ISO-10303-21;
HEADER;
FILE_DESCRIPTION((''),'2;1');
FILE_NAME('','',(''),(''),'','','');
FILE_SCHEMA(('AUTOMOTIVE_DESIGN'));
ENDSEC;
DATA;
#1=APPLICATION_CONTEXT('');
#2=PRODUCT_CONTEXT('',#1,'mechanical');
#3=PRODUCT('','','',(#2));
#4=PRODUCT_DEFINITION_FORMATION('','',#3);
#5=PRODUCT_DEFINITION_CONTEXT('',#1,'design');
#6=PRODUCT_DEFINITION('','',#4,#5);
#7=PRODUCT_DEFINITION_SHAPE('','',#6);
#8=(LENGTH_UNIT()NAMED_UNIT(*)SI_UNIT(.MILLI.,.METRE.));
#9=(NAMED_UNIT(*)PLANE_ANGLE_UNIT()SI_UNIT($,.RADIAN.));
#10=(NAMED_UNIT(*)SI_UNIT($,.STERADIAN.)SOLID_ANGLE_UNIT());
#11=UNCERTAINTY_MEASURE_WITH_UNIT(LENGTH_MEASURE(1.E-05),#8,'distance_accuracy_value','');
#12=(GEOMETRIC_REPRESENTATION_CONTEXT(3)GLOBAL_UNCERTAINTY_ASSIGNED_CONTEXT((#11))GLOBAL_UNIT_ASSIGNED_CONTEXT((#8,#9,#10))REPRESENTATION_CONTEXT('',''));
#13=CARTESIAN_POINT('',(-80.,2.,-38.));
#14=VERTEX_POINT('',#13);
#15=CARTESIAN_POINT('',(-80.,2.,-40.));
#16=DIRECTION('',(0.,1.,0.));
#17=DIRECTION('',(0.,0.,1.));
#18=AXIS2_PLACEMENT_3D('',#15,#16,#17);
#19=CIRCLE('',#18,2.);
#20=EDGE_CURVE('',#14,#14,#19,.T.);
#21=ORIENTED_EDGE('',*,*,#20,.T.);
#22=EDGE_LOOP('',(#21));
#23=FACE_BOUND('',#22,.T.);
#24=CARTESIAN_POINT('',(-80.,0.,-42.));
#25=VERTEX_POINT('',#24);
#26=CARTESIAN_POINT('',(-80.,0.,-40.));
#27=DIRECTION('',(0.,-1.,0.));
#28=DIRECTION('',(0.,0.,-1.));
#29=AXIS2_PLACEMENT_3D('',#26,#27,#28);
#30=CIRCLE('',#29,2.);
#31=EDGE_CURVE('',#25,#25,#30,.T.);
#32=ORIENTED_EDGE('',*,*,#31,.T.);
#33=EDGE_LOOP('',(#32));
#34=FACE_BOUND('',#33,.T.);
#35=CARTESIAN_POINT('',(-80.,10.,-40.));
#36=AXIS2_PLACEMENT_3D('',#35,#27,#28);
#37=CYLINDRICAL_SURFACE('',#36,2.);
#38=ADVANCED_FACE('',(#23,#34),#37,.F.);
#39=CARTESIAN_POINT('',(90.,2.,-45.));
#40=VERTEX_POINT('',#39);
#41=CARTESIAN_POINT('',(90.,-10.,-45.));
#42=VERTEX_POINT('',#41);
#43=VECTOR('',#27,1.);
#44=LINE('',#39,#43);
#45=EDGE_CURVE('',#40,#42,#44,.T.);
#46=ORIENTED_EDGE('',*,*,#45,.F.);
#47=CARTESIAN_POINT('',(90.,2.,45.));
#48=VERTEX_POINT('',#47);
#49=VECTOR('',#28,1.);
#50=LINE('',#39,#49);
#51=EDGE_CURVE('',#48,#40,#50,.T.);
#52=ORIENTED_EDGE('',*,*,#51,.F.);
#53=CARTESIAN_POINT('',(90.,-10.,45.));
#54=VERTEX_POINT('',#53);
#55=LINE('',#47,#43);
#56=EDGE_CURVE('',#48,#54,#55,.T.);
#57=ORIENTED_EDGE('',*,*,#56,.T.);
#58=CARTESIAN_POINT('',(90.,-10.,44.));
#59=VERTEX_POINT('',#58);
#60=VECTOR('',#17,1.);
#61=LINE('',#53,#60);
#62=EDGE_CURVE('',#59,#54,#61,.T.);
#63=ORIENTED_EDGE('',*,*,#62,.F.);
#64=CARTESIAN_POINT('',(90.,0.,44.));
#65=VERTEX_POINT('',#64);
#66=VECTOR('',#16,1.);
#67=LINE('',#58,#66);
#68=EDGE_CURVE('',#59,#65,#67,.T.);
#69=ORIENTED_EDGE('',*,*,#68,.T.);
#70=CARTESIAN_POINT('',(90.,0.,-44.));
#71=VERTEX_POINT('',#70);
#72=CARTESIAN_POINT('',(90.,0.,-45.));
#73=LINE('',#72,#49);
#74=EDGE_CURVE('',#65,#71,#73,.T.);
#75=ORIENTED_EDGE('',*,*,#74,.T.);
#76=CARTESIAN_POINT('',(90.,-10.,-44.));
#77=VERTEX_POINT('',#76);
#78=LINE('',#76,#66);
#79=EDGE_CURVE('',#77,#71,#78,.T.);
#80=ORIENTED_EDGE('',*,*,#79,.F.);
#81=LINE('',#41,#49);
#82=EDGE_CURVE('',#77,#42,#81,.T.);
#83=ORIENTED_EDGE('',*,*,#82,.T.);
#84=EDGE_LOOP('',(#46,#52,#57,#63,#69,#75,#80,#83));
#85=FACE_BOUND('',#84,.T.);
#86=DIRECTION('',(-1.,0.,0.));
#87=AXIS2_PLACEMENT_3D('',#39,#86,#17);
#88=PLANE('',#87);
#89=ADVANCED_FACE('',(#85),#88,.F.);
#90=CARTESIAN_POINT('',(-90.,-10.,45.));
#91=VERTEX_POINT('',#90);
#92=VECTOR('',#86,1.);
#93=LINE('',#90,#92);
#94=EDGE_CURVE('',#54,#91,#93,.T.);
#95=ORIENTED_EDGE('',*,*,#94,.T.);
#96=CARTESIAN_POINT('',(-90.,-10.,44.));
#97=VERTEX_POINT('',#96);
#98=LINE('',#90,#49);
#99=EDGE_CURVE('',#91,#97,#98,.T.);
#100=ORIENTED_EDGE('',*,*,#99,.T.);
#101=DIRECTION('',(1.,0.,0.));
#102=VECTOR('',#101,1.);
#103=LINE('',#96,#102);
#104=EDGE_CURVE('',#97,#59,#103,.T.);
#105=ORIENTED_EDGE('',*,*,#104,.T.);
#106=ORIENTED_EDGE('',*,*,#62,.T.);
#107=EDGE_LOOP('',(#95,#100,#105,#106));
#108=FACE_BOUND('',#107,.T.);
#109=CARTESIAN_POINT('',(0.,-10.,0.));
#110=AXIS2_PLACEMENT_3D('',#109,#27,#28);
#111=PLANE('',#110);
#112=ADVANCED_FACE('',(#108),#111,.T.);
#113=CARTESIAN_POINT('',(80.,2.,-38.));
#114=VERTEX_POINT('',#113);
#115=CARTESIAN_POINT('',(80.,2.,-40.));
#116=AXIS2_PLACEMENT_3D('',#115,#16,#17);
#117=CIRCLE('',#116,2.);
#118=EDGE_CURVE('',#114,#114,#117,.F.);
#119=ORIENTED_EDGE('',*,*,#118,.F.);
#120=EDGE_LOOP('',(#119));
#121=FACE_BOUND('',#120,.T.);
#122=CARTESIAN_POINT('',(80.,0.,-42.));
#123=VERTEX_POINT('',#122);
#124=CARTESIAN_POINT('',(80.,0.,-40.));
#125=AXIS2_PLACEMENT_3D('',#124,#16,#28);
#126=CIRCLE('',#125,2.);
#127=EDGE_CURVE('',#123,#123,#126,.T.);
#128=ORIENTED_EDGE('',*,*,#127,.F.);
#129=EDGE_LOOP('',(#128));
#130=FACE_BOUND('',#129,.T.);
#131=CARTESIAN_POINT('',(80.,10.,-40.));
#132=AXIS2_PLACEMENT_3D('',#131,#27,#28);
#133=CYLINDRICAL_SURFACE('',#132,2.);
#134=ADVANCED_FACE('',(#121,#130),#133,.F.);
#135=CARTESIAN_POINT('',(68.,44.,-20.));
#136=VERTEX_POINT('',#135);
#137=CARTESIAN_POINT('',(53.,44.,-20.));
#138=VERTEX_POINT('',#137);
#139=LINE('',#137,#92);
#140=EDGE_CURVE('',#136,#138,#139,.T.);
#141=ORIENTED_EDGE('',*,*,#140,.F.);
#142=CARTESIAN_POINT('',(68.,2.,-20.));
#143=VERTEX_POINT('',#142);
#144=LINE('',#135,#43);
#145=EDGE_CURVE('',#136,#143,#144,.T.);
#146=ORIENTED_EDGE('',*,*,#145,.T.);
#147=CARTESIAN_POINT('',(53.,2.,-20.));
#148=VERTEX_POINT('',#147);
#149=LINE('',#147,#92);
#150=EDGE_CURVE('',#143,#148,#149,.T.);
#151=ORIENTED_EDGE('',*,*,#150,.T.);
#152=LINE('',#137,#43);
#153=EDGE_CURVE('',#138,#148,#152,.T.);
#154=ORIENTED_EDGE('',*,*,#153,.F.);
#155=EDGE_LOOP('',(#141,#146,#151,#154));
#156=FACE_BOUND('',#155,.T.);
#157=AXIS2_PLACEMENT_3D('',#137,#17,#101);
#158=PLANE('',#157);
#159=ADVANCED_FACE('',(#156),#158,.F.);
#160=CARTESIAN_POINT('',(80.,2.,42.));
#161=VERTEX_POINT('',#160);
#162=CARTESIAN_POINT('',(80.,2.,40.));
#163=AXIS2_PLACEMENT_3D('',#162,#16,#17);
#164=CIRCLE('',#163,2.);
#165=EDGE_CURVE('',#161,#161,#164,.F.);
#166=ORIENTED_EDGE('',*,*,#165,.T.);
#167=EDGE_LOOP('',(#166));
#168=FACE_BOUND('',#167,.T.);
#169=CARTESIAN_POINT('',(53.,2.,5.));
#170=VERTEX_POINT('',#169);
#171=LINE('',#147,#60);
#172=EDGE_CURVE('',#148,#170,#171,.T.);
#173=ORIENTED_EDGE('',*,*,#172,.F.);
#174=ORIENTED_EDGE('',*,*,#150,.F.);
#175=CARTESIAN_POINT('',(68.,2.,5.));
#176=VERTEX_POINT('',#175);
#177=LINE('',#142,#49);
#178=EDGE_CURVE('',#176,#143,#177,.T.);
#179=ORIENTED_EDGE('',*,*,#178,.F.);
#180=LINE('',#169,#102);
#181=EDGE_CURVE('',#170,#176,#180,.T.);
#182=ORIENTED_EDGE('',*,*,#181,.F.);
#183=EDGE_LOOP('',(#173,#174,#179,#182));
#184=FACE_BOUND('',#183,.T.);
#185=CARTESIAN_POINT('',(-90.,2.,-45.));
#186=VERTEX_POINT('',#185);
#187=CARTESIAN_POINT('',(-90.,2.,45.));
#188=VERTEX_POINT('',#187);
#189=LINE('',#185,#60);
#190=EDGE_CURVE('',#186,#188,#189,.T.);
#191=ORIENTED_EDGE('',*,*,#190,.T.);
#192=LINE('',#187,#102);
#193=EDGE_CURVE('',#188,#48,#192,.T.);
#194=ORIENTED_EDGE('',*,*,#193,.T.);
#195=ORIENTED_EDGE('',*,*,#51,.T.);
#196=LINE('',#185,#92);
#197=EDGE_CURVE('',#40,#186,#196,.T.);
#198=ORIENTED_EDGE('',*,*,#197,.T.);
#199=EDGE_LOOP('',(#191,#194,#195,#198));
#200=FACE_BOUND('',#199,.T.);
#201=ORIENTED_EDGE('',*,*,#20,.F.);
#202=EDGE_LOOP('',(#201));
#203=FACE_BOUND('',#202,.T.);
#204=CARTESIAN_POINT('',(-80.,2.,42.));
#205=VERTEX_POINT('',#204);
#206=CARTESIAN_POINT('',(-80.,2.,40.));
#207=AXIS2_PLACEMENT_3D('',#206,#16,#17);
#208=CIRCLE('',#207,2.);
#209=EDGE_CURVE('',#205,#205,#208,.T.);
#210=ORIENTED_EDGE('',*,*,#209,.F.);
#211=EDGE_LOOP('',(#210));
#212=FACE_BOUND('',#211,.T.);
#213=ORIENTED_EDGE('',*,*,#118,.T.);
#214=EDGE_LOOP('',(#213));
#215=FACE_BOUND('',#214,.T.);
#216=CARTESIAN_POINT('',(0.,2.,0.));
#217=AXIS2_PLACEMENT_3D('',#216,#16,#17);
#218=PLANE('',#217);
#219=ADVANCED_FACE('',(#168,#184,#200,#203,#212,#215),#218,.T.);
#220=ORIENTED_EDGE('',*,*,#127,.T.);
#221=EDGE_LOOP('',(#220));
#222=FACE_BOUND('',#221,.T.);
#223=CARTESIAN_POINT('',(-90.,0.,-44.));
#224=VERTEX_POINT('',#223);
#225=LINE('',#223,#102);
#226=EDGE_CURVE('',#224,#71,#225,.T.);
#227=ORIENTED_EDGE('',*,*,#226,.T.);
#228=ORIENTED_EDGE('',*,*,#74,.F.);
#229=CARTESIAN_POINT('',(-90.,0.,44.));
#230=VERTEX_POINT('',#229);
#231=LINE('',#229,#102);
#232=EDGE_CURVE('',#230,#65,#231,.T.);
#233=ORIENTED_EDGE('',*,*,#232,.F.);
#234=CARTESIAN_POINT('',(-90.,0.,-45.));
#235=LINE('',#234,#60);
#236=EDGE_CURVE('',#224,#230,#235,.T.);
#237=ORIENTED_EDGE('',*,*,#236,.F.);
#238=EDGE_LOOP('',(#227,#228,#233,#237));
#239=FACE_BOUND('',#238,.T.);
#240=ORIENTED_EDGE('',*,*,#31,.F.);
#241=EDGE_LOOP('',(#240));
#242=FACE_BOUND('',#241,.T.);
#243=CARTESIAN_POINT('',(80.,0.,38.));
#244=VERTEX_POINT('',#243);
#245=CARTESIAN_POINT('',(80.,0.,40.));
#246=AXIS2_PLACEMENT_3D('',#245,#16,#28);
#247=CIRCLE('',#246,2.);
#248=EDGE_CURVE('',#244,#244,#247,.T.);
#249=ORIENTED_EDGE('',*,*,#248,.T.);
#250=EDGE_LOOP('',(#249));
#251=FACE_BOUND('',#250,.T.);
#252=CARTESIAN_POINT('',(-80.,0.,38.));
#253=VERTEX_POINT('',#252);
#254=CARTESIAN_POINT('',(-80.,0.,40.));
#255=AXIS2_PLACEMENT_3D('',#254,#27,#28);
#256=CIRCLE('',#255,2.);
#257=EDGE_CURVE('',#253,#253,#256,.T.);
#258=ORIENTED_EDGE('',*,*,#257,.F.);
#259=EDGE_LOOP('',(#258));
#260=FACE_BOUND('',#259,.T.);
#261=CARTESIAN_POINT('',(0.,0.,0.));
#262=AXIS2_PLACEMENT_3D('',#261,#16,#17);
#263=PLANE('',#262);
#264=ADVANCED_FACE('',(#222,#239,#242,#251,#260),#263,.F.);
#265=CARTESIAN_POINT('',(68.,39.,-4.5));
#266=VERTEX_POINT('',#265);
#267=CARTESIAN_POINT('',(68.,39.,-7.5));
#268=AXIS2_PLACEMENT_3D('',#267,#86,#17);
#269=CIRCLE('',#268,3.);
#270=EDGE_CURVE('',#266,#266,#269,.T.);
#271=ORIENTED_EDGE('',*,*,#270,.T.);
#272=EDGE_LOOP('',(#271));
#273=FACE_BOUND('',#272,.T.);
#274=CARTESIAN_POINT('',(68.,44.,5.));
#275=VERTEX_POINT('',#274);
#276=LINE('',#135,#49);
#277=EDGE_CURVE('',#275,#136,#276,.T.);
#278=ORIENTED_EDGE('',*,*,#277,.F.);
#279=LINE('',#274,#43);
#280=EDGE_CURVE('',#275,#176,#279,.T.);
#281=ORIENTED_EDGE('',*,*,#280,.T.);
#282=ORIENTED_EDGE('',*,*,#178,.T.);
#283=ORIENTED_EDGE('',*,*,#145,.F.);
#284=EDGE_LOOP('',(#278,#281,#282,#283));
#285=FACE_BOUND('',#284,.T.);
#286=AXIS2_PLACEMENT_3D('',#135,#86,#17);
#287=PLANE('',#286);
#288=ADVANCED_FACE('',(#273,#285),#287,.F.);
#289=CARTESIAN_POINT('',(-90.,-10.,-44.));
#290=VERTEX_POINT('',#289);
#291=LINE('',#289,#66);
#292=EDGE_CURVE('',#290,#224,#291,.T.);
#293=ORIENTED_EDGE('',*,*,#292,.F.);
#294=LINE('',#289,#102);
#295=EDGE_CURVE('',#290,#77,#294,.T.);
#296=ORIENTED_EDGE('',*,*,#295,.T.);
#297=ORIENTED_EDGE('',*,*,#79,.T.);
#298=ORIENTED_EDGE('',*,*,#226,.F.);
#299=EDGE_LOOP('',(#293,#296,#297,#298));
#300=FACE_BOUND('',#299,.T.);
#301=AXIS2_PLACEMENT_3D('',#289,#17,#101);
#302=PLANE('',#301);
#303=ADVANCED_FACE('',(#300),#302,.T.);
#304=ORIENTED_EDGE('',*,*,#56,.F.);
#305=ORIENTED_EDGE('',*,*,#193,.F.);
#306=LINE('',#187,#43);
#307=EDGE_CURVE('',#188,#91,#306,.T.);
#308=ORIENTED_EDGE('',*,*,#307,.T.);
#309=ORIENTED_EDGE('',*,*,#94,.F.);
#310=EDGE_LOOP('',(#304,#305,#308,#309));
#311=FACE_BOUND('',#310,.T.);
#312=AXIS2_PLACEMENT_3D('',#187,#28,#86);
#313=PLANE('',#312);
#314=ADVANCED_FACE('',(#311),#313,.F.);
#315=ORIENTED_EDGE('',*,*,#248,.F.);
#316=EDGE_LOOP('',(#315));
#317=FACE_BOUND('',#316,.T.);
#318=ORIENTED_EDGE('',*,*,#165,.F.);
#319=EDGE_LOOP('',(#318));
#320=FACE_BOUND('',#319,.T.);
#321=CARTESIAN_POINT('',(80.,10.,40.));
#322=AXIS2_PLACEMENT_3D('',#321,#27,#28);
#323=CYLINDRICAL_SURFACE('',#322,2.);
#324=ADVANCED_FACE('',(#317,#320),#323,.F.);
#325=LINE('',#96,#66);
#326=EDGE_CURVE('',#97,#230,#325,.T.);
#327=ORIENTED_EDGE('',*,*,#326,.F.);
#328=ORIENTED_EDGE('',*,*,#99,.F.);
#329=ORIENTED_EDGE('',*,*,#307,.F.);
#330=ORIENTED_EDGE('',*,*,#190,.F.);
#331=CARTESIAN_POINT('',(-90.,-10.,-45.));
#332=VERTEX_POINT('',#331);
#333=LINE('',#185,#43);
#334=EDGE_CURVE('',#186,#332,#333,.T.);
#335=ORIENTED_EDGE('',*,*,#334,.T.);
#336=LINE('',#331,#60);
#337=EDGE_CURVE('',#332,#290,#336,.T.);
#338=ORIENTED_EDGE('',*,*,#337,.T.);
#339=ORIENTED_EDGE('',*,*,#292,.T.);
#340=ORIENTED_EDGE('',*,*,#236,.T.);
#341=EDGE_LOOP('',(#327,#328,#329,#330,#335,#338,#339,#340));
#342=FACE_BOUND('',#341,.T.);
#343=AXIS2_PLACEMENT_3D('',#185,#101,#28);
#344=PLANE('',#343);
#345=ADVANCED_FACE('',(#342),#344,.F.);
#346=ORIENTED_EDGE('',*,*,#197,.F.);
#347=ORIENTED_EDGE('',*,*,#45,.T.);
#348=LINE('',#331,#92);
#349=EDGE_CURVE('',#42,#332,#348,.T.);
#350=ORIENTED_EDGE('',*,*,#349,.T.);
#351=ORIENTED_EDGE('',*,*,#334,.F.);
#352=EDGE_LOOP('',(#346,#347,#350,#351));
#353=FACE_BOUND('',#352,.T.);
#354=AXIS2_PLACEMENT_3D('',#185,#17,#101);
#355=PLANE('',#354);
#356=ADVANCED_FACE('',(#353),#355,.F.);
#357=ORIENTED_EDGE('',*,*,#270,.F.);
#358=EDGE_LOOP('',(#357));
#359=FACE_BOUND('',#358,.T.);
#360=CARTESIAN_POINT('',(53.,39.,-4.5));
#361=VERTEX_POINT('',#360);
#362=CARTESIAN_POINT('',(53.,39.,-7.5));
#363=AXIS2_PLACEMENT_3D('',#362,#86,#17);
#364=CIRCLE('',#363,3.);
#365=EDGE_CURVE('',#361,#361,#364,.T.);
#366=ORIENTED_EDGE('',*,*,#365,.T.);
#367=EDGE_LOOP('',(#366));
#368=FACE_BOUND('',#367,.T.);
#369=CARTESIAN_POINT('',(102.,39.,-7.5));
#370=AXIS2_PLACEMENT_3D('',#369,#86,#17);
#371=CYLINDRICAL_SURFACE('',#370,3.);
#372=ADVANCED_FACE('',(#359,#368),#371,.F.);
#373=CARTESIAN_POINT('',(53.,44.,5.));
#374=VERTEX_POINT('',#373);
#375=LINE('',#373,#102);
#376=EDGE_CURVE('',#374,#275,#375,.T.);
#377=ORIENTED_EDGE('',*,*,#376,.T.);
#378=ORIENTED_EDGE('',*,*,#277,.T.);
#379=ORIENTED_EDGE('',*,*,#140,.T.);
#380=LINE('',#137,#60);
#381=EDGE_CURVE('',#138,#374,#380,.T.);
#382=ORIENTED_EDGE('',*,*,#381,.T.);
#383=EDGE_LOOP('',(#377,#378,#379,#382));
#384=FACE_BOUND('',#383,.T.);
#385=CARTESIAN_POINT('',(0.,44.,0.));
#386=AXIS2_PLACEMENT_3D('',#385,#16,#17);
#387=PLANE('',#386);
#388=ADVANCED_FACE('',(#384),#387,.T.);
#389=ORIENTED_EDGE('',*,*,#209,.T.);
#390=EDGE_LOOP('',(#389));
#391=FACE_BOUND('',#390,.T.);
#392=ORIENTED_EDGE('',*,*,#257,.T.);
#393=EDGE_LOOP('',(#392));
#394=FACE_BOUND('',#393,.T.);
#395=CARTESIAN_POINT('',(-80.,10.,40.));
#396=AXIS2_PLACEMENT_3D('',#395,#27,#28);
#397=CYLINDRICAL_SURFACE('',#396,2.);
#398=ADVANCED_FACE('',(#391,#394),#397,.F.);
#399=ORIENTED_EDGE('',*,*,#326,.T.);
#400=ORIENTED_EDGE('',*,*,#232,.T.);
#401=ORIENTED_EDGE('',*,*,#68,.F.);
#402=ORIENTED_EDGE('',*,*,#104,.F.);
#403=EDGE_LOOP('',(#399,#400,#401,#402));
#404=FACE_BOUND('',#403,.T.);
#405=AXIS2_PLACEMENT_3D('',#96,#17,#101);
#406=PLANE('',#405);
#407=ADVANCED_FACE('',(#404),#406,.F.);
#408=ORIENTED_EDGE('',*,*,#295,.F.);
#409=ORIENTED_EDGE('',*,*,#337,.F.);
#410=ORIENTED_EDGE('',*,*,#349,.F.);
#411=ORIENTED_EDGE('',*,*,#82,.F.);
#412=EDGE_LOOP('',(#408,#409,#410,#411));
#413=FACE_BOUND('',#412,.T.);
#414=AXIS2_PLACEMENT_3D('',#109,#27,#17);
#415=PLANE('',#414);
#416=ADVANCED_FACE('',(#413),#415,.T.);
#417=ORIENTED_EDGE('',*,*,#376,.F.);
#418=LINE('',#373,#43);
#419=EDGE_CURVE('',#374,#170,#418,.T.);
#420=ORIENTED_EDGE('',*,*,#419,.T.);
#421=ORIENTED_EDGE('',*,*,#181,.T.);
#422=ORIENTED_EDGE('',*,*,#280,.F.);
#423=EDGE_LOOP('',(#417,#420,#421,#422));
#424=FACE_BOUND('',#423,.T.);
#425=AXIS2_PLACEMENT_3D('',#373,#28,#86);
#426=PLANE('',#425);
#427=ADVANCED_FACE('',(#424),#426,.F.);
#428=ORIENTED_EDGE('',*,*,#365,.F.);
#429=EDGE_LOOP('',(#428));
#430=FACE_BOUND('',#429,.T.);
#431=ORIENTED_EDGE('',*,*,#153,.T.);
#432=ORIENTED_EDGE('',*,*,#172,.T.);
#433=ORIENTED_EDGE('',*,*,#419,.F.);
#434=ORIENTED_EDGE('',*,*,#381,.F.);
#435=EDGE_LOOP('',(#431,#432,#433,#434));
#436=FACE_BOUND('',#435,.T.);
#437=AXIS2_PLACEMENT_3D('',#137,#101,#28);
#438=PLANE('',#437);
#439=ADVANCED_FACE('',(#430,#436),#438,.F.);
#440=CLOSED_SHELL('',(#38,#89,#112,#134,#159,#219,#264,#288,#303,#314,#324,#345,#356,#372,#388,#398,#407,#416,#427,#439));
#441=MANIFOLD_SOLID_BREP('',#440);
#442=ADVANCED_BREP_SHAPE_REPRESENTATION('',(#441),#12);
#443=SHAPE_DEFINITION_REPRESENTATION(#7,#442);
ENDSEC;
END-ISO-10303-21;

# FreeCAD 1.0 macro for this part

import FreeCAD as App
import Part
import Sketcher

V = App.Vector
Q = App.Units.Quantity

doc = App.newDocument("Part")
params = doc.addObject("Spreadsheet::Sheet", "Params")
for row, (alias, value) in enumerate([
    ("sketch1_width", "180 mm"),
    ("sketch1_height", "90 mm"),
    ("pad1_length", "2 mm"),
    ("sketch2_width", "180 mm"),
    ("sketch2_height", "1 mm"),
    ("pad2_length", "10 mm"),
    ("sketch3_diameter", "4 mm"),
    ("pocket1_length", "10 mm"),
    ("sketch4_width", "15 mm"),
    ("sketch4_height", "25 mm"),
    ("pad3_length", "42 mm"),
    ("sketch5_diameter", "6 mm"),
    ("pocket2_length", "49 mm"),
], start=1):
    params.set(f"A{row}", alias)
    params.set(f"B{row}", "=" + value)
    params.setAlias(f"B{row}", alias)

body = doc.addObject("PartDesign::Body", "Body")

# Sketch on XZ plane
sketch1 = doc.addObject("Sketcher::SketchObject", "Sketch")
body.addObject(sketch1)
sketch1.AttachmentSupport = (doc.XZ_Plane, [""])
sketch1.MapMode = "FlatFace"
sketch1.addGeometry([
    Part.LineSegment(V(-90, -45, 0), V(-90, 45, 0)),
    Part.LineSegment(V(-90, 45, 0), V(90, 45, 0)),
    Part.LineSegment(V(90, 45, 0), V(90, -45, 0)),
    Part.LineSegment(V(90, -45, 0), V(-90, -45, 0)),
], False)
sketch1.addConstraint([
    Sketcher.Constraint("Coincident", 0, 2, 1, 1),
    Sketcher.Constraint("Coincident", 1, 2, 2, 1),
    Sketcher.Constraint("Coincident", 2, 2, 3, 1),
    Sketcher.Constraint("Coincident", 3, 2, 0, 1),
    Sketcher.Constraint("Vertical", 0),
    Sketcher.Constraint("Horizontal", 1),
    Sketcher.Constraint("Vertical", 2),
    Sketcher.Constraint("Horizontal", 3),
    Sketcher.Constraint("Symmetric", 0, 2, 2, 2, -1, 1),
    Sketcher.Constraint("DistanceX", 1, 1, 1, 2, Q("180 mm")),
    Sketcher.Constraint("DistanceY", 0, 1, 0, 2, Q("90 mm")),
])
sketch1.setExpression("Constraints[9]", "Params.sketch1_width")
sketch1.setExpression("Constraints[10]", "Params.sketch1_height")
pad1 = doc.addObject("PartDesign::Pad", "Pad")
body.addObject(pad1)
pad1.Profile = sketch1
pad1.setExpression("Length", "Params.pad1_length")
pad1.Reversed = True

# Sketch on XZ plane
sketch2 = doc.addObject("Sketcher::SketchObject", "Sketch001")
body.addObject(sketch2)
sketch2.AttachmentSupport = (doc.XZ_Plane, [""])
sketch2.MapMode = "FlatFace"
sketch2.addGeometry([
    Part.LineSegment(V(-90, 45, 0), V(-90, 44, 0)),
    Part.LineSegment(V(-90, 44, 0), V(90, 44, 0)),
    Part.LineSegment(V(90, 44, 0), V(90, 45, 0)),
    Part.LineSegment(V(90, 45, 0), V(-90, 45, 0)),
], False)
sketch2.addConstraint([
    Sketcher.Constraint("Coincident", 0, 2, 1, 1),
    Sketcher.Constraint("Coincident", 1, 2, 2, 1),
    Sketcher.Constraint("Coincident", 2, 2, 3, 1),
    Sketcher.Constraint("Coincident", 3, 2, 0, 1),
    Sketcher.Constraint("Vertical", 0),
    Sketcher.Constraint("Horizontal", 1),
    Sketcher.Constraint("Vertical", 2),
    Sketcher.Constraint("Horizontal", 3),
    Sketcher.Constraint("DistanceX", 1, 1, 1, 2, Q("180 mm")),
    Sketcher.Constraint("DistanceY", 0, 2, 0, 1, Q("1 mm")),
    Sketcher.Constraint("DistanceX", 0, 2, -1, 1, Q("90 mm")),
    Sketcher.Constraint("DistanceY", -1, 1, 0, 2, Q("44 mm")),
])
sketch2.setExpression("Constraints[8]", "Params.sketch2_width")
sketch2.setExpression("Constraints[9]", "Params.sketch2_height")
pad2 = doc.addObject("PartDesign::Pad", "Pad001")
body.addObject(pad2)
pad2.Profile = sketch2
pad2.setExpression("Length", "Params.pad2_length")
doc.recompute()

mirrored = doc.addObject("PartDesign::Mirrored", "Mirrored")
body.addObject(mirrored)
mirrored.Originals = [pad2]
mirrored.MirrorPlane = (doc.XY_Plane, [""])
body.Tip = mirrored

# Sketch on XZ plane
sketch3 = doc.addObject("Sketcher::SketchObject", "Sketch002")
body.addObject(sketch3)
sketch3.AttachmentSupport = (doc.XZ_Plane, [""])
sketch3.MapMode = "FlatFace"
sketch3.addGeometry([
    Part.Circle(V(-80, 40, 0), V(0, 0, 1), 2),
    Part.Circle(V(-80, -40, 0), V(0, 0, 1), 2),
], False)
sketch3.addConstraint([
    Sketcher.Constraint("Equal", 0, 1),
    Sketcher.Constraint("Symmetric", 0, 3, 1, 3, -1),
    Sketcher.Constraint("Diameter", 0, Q("4 mm")),
    Sketcher.Constraint("DistanceX", 0, 3, -1, 1, Q("80 mm")),
    Sketcher.Constraint("DistanceY", -1, 1, 0, 3, Q("40 mm")),
])
sketch3.setExpression("Constraints[2]", "Params.sketch3_diameter")
pocket1 = doc.addObject("PartDesign::Pocket", "Pocket")
body.addObject(pocket1)
pocket1.Profile = sketch3
pocket1.setExpression("Length", "Params.pocket1_length")
doc.recompute()

mirrored2 = doc.addObject("PartDesign::Mirrored", "Mirrored001")
body.addObject(mirrored2)
mirrored2.Originals = [pocket1]
mirrored2.MirrorPlane = (doc.YZ_Plane, [""])
body.Tip = mirrored2

# Sketch on XZ plane
sketch4 = doc.addObject("Sketcher::SketchObject", "Sketch003")
body.addObject(sketch4)
sketch4.AttachmentSupport = (doc.XZ_Plane, [""])
sketch4.MapMode = "FlatFace"
sketch4.AttachmentOffset = App.Placement(V(0, 0, -2), App.Rotation())
sketch4.addGeometry([
    Part.LineSegment(V(53, -20, 0), V(53, 5, 0)),
    Part.LineSegment(V(53, 5, 0), V(68, 5, 0)),
    Part.LineSegment(V(68, 5, 0), V(68, -20, 0)),
    Part.LineSegment(V(68, -20, 0), V(53, -20, 0)),
], False)
sketch4.addConstraint([
    Sketcher.Constraint("Coincident", 0, 2, 1, 1),
    Sketcher.Constraint("Coincident", 1, 2, 2, 1),
    Sketcher.Constraint("Coincident", 2, 2, 3, 1),
    Sketcher.Constraint("Coincident", 3, 2, 0, 1),
    Sketcher.Constraint("Vertical", 0),
    Sketcher.Constraint("Horizontal", 1),
    Sketcher.Constraint("Vertical", 2),
    Sketcher.Constraint("Horizontal", 3),
    Sketcher.Constraint("DistanceX", 1, 1, 1, 2, Q("15 mm")),
    Sketcher.Constraint("DistanceY", 0, 1, 0, 2, Q("25 mm")),
    Sketcher.Constraint("DistanceX", -1, 1, 0, 2, Q("53 mm")),
    Sketcher.Constraint("DistanceY", -1, 1, 0, 2, Q("5 mm")),
])
sketch4.setExpression("Constraints[8]", "Params.sketch4_width")
sketch4.setExpression("Constraints[9]", "Params.sketch4_height")
pad3 = doc.addObject("PartDesign::Pad", "Pad002")
body.addObject(pad3)
pad3.Profile = sketch4
pad3.setExpression("Length", "Params.pad3_length")
pad3.Reversed = True

# Sketch on YZ plane
sketch5 = doc.addObject("Sketcher::SketchObject", "Sketch004")
body.addObject(sketch5)
sketch5.AttachmentSupport = (doc.YZ_Plane, [""])
sketch5.MapMode = "FlatFace"
sketch5.AttachmentOffset = App.Placement(V(0, 0, 53), App.Rotation())
sketch5.addGeometry(Part.Circle(V(39, -7.5, 0), V(0, 0, 1), 3), False)
sketch5.addConstraint([
    Sketcher.Constraint("Diameter", 0, Q("6 mm")),
    Sketcher.Constraint("DistanceX", -1, 1, 0, 3, Q("39 mm")),
    Sketcher.Constraint("DistanceY", 0, 3, -1, 1, Q("7.5 mm")),
])
sketch5.setExpression("Constraints[0]", "Params.sketch5_diameter")
pocket2 = doc.addObject("PartDesign::Pocket", "Pocket001")
body.addObject(pocket2)
pocket2.Profile = sketch5
pocket2.setExpression("Length", "Params.pocket2_length")
pocket2.Reversed = True

doc.recompute()
